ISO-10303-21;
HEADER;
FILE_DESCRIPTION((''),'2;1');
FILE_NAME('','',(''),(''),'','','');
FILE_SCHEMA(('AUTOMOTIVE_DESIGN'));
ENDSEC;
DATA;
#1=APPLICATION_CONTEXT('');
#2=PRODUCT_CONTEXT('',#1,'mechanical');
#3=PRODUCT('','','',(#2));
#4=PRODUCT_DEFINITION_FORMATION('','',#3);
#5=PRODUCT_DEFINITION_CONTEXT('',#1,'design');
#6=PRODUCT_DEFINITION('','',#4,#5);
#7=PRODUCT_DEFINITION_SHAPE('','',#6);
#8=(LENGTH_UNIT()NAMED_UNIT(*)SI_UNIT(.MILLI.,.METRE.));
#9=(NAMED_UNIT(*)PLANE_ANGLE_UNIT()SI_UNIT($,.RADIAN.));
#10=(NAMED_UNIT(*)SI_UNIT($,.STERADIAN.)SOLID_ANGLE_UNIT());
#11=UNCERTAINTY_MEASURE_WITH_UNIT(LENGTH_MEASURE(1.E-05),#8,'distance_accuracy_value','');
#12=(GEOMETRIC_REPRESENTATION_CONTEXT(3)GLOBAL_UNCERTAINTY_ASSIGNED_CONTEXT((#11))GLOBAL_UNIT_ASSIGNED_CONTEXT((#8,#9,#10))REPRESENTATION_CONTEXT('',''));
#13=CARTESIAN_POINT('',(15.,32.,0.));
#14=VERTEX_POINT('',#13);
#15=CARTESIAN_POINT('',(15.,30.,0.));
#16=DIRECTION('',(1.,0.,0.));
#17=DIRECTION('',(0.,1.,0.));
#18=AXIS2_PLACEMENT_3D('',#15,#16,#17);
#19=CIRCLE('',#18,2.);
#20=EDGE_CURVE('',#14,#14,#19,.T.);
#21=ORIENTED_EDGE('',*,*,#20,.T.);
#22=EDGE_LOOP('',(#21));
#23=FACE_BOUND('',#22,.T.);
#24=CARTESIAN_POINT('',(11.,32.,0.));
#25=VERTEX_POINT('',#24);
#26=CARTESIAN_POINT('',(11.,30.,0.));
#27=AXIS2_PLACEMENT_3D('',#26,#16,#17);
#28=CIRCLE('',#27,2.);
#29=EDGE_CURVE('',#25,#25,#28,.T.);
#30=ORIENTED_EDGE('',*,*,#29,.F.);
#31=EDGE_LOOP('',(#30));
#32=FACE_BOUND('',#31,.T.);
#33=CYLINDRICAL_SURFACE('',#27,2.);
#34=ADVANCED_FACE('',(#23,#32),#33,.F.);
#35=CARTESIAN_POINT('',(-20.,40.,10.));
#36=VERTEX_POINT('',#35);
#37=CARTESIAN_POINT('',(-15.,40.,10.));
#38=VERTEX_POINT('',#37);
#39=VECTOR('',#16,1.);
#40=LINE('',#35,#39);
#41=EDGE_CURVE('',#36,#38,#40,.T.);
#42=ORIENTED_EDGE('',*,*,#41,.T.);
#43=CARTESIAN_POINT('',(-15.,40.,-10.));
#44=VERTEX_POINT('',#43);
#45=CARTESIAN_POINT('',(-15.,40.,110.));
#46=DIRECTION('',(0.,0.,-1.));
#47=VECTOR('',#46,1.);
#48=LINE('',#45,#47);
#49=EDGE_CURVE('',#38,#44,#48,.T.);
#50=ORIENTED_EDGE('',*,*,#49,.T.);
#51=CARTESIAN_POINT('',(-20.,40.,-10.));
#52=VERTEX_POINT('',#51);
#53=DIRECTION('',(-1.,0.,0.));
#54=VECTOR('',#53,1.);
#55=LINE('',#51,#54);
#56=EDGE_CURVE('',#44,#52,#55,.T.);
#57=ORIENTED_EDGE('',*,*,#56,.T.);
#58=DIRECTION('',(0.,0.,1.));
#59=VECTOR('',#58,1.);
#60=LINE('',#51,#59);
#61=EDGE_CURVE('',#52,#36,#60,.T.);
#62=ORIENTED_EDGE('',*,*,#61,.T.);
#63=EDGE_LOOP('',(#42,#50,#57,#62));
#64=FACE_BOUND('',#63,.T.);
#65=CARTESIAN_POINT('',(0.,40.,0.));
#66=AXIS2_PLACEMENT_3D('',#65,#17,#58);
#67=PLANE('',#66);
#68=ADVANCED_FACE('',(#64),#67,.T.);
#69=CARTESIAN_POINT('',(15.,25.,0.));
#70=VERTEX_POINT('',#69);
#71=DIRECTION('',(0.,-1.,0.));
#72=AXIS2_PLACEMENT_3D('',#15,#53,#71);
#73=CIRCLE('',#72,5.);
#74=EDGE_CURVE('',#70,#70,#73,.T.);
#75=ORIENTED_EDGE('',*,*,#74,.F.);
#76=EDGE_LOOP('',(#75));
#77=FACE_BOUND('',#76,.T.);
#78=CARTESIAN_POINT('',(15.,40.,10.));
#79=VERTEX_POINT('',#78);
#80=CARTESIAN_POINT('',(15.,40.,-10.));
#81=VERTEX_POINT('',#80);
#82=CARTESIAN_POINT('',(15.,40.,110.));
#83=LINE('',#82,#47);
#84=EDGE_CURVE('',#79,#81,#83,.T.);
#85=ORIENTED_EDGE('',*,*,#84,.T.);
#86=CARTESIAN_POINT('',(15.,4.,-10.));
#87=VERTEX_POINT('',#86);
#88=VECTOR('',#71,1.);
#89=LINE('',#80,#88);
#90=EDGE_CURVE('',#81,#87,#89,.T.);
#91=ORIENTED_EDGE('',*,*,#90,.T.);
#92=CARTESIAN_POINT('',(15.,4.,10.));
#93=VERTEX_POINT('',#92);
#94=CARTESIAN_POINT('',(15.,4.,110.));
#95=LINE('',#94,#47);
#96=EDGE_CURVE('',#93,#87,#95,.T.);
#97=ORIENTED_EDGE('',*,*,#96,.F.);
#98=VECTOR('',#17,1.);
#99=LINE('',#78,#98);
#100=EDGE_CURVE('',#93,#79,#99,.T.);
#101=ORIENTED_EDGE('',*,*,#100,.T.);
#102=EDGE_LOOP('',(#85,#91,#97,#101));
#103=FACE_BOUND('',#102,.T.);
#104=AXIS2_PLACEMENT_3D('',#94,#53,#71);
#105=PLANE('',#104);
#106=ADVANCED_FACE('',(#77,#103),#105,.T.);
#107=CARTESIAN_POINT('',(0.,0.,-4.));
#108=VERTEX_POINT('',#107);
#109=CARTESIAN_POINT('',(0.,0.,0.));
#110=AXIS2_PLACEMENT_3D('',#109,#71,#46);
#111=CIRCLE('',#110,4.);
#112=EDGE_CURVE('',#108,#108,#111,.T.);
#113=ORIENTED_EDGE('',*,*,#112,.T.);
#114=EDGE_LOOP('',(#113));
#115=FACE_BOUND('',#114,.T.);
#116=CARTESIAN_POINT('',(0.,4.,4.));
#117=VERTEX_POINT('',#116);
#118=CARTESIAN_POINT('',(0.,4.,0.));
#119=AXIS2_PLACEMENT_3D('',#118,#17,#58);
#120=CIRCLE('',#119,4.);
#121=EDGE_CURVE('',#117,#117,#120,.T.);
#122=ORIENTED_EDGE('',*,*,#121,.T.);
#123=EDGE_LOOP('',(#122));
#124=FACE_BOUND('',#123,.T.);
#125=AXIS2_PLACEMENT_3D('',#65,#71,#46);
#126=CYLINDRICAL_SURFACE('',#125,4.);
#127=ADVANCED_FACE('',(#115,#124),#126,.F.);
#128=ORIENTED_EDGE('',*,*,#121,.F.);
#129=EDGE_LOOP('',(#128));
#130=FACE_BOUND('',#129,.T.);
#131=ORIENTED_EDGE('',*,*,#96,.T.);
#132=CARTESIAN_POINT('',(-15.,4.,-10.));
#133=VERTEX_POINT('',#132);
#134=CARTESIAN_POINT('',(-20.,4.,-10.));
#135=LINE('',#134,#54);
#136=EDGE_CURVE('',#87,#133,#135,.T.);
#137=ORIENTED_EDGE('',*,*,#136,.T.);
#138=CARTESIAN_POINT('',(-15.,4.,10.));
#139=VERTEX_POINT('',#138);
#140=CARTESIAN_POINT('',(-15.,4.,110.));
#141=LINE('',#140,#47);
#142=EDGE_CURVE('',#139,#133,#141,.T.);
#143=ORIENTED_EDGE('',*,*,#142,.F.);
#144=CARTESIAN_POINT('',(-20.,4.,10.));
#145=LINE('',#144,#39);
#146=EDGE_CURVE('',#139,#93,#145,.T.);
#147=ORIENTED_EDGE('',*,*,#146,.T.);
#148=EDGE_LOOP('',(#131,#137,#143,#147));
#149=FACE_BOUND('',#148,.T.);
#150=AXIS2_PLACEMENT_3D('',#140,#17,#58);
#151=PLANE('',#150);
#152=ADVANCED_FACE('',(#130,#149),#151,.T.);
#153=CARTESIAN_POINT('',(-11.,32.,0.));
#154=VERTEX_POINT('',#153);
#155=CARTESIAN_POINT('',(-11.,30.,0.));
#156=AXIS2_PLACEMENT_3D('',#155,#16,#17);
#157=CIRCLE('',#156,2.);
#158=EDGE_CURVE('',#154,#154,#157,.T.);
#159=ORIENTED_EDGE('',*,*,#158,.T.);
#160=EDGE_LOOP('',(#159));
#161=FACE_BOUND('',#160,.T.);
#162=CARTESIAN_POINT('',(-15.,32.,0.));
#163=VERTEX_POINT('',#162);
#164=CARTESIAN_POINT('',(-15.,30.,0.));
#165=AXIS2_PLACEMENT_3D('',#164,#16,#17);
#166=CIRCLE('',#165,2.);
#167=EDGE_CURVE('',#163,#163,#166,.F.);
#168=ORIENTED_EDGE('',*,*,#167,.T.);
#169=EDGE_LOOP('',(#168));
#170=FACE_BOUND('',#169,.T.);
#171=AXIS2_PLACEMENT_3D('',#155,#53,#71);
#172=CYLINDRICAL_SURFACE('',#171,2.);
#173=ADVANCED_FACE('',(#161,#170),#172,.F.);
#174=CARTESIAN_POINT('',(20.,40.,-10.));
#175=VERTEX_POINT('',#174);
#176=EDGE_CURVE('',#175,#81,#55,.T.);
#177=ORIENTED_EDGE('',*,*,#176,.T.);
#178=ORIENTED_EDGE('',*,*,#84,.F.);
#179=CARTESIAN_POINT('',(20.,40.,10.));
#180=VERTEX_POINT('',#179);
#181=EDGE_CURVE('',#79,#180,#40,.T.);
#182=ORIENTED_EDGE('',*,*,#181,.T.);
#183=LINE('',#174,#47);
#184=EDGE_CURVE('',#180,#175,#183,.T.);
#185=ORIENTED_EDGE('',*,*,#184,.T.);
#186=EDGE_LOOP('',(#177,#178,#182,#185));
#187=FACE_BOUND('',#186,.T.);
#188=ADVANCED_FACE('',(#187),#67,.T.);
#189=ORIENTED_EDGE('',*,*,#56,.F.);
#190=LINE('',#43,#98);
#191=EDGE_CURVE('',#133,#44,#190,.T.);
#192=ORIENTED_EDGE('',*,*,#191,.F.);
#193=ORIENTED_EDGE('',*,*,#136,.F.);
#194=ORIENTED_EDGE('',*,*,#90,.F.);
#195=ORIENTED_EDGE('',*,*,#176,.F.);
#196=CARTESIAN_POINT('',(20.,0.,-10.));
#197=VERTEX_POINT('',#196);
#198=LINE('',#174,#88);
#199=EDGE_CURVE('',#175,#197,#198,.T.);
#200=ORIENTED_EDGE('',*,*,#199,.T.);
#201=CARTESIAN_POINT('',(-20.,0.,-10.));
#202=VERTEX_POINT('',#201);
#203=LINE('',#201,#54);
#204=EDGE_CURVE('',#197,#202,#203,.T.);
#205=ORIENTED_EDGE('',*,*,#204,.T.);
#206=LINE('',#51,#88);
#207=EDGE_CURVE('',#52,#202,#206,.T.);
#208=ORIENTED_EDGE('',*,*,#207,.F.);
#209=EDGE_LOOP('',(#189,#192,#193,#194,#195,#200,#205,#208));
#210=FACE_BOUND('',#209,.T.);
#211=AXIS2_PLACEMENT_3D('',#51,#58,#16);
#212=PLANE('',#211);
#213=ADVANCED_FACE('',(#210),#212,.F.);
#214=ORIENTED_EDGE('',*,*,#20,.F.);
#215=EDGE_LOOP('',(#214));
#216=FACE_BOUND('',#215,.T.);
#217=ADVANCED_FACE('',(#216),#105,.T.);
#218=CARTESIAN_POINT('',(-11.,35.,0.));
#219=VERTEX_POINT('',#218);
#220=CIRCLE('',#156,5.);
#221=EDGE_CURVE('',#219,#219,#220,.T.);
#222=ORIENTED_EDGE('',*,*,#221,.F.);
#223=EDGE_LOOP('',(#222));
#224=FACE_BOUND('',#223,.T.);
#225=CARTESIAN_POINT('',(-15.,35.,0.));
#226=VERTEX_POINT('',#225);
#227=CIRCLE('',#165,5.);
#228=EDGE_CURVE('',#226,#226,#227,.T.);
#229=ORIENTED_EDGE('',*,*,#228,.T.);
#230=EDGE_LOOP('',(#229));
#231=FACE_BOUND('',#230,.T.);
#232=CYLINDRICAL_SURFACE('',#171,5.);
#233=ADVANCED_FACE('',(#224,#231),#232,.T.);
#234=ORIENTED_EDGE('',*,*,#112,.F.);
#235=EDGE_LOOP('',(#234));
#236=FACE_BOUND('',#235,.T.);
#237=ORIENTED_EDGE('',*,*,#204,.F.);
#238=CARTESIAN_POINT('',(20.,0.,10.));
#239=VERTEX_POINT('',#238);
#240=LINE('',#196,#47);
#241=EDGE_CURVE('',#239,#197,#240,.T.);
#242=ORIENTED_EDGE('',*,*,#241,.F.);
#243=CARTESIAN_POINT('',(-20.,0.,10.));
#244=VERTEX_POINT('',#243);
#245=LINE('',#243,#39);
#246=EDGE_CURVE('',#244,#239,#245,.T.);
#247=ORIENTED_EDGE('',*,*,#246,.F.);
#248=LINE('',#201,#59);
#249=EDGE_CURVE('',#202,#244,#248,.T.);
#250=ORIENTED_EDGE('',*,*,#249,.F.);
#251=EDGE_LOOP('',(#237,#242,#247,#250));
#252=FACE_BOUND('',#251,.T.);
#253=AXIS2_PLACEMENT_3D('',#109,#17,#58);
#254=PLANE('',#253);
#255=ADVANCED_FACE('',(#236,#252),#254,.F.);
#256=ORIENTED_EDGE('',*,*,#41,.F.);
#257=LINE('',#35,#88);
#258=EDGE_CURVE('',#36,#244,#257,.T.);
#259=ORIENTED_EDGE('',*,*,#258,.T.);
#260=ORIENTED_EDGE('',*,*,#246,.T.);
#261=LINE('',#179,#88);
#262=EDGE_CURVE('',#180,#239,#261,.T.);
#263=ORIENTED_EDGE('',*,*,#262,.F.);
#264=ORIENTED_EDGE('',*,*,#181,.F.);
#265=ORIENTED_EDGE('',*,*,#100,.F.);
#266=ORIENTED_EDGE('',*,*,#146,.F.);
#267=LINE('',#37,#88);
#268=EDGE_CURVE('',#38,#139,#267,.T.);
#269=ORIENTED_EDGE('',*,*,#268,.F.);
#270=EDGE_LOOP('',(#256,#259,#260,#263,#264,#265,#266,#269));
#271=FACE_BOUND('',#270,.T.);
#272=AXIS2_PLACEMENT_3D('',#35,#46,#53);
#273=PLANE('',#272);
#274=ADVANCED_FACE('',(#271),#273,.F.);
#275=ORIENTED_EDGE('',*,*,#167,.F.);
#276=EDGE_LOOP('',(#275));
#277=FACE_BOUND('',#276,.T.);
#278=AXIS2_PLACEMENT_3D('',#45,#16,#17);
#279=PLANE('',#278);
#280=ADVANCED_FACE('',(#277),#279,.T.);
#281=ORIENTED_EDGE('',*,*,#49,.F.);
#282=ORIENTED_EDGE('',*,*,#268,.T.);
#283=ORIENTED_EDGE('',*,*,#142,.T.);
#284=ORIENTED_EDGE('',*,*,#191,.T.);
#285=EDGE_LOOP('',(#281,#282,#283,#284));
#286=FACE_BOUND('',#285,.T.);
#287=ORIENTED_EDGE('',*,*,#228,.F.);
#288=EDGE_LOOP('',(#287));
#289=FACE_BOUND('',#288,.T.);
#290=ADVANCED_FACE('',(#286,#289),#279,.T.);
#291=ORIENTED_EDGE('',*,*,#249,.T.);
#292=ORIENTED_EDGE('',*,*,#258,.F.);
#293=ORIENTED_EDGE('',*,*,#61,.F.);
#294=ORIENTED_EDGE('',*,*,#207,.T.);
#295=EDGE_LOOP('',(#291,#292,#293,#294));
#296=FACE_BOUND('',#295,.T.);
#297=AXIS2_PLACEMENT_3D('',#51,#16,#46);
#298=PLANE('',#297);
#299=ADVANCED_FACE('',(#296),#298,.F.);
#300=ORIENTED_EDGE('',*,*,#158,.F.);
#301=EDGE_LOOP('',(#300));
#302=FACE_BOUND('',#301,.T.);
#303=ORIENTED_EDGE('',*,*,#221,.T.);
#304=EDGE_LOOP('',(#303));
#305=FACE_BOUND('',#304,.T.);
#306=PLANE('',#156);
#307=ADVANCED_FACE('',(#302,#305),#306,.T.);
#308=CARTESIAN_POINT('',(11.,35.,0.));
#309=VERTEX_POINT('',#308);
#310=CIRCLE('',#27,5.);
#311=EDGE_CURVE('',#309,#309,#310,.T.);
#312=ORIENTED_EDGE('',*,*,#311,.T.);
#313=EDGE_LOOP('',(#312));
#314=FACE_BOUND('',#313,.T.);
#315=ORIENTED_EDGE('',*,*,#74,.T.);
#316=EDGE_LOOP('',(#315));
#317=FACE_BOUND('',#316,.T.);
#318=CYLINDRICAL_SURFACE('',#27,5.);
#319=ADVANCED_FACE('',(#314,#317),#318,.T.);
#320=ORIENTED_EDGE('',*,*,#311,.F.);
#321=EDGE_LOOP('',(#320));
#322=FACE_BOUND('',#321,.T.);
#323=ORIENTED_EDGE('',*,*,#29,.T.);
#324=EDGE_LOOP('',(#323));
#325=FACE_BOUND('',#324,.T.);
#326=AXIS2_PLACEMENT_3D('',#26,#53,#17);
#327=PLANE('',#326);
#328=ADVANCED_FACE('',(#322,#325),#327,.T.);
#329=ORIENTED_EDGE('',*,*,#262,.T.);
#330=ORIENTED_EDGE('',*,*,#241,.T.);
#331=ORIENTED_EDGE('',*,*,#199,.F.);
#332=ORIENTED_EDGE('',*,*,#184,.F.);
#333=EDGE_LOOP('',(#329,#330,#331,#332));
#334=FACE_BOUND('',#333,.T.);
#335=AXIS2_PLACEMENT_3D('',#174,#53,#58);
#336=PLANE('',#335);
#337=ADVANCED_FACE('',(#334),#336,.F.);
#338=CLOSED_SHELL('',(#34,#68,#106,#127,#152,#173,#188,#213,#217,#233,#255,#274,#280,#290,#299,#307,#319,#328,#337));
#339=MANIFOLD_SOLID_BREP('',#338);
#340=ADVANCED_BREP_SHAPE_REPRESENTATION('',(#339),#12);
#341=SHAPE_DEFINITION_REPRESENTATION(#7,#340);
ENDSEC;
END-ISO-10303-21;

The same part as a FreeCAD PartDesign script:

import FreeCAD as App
import Part
import Sketcher
from FreeCAD import Vector

doc = App.newDocument("Part")
body = doc.addObject("PartDesign::Body", "Body")

# Sketch on XZ plane
sketch1 = body.newObject("Sketcher::SketchObject", "Sketch")
sketch1.AttachmentSupport = (doc.getObject("XZ_Plane"), [""])
sketch1.MapMode = "FlatFace"
sketch1.addGeometry(Part.LineSegment(Vector(-20, -10, 0), Vector(-20, 10, 0)), False)
sketch1.addGeometry(Part.LineSegment(Vector(-20, 10, 0), Vector(20, 10, 0)), False)
sketch1.addGeometry(Part.LineSegment(Vector(20, 10, 0), Vector(20, -10, 0)), False)
sketch1.addGeometry(Part.LineSegment(Vector(20, -10, 0), Vector(-20, -10, 0)), False)
sketch1.addConstraint(Sketcher.Constraint("Coincident", 0, 2, 1, 1))
sketch1.addConstraint(Sketcher.Constraint("Coincident", 1, 2, 2, 1))
sketch1.addConstraint(Sketcher.Constraint("Coincident", 2, 2, 3, 1))
sketch1.addConstraint(Sketcher.Constraint("Coincident", 3, 2, 0, 1))
sketch1.addConstraint(Sketcher.Constraint("Vertical", 0))
sketch1.addConstraint(Sketcher.Constraint("Horizontal", 1))
sketch1.addConstraint(Sketcher.Constraint("Vertical", 2))
sketch1.addConstraint(Sketcher.Constraint("Horizontal", 3))
sketch1.addConstraint(Sketcher.Constraint("Symmetric", 0, 2, 2, 2, -1, 1))
sketch1.addConstraint(Sketcher.Constraint("DistanceX", 1, 1, 1, 2, 40.0))
sketch1.addConstraint(Sketcher.Constraint("DistanceY", 0, 1, 0, 2, 20.0))
pad1 = body.newObject("PartDesign::Pad", "Pad")
pad1.Profile = sketch1
pad1.Length = 40
pad1.Reversed = True

# Sketch on XY plane
sketch2 = body.newObject("Sketcher::SketchObject", "Sketch001")
sketch2.AttachmentSupport = (doc.getObject("XY_Plane"), [""])
sketch2.MapMode = "FlatFace"
sketch2.AttachmentOffset = App.Placement(Vector(0, 0, 10), App.Rotation())
sketch2.addGeometry(Part.LineSegment(Vector(-15, 4, 0), Vector(15, 4, 0)), False)
sketch2.addGeometry(Part.LineSegment(Vector(15, 4, 0), Vector(15, 389, 0)), False)
sketch2.addGeometry(Part.LineSegment(Vector(15, 389, 0), Vector(-15, 389, 0)), False)
sketch2.addGeometry(Part.LineSegment(Vector(-15, 389, 0), Vector(-15, 4, 0)), False)
sketch2.addConstraint(Sketcher.Constraint("Coincident", 0, 2, 1, 1))
sketch2.addConstraint(Sketcher.Constraint("Coincident", 1, 2, 2, 1))
sketch2.addConstraint(Sketcher.Constraint("Coincident", 2, 2, 3, 1))
sketch2.addConstraint(Sketcher.Constraint("Coincident", 3, 2, 0, 1))
sketch2.addConstraint(Sketcher.Constraint("Horizontal", 0))
sketch2.addConstraint(Sketcher.Constraint("Vertical", 1))
sketch2.addConstraint(Sketcher.Constraint("Horizontal", 2))
sketch2.addConstraint(Sketcher.Constraint("Vertical", 3))
sketch2.addConstraint(Sketcher.Constraint("DistanceX", 0, 1, 0, 2, 30.0))
sketch2.addConstraint(Sketcher.Constraint("DistanceX", -1, 1, 0, 2, 15.0))
sketch2.addConstraint(Sketcher.Constraint("DistanceY", -1, 1, 0, 2, 4.0))
sketch2.addConstraint(Sketcher.Constraint("DistanceY", 1, 1, 1, 2, 384.904374))
pocket1 = body.newObject("PartDesign::Pocket", "Pocket")
pocket1.Profile = sketch2
pocket1.Type = "ThroughAll"
pocket1.Midplane = True

# Sketch on XZ plane
sketch3 = body.newObject("Sketcher::SketchObject", "Sketch002")
sketch3.AttachmentSupport = (doc.getObject("XZ_Plane"), [""])
sketch3.MapMode = "FlatFace"
sketch3.addGeometry(Part.Circle(Vector(0, 0, 0), Vector(0, 0, 1), 4), False)
sketch3.addConstraint(Sketcher.Constraint("Coincident", 0, 3, -1, 1))
sketch3.addConstraint(Sketcher.Constraint("Diameter", 0, 8.0))
pocket2 = body.newObject("PartDesign::Pocket", "Pocket001")
pocket2.Profile = sketch3
pocket2.Type = "ThroughAll"

# Sketch on YZ plane
sketch4 = body.newObject("Sketcher::SketchObject", "Sketch003")
sketch4.AttachmentSupport = (doc.getObject("YZ_Plane"), [""])
sketch4.MapMode = "FlatFace"
sketch4.AttachmentOffset = App.Placement(Vector(0, 0, -15), App.Rotation())
sketch4.addGeometry(Part.Circle(Vector(30, 0, 0), Vector(0, 0, 1), 5), False)
sketch4.addGeometry(Part.Circle(Vector(30, 0, 0), Vector(0, 0, 1), 2), False)
sketch4.addConstraint(Sketcher.Constraint("Coincident", 1, 3, 0, 3))
sketch4.addConstraint(Sketcher.Constraint("PointOnObject", 0, 3, -1))
sketch4.addConstraint(Sketcher.Constraint("Diameter", 0, 10.0))
sketch4.addConstraint(Sketcher.Constraint("Diameter", 1, 4.0))
sketch4.addConstraint(Sketcher.Constraint("DistanceX", -1, 1, 0, 3, 30.0))
pad2 = body.newObject("PartDesign::Pad", "Pad001")
pad2.Profile = sketch4
pad2.Length = 4
doc.recompute()

mirrored = body.newObject("PartDesign::Mirrored", "Mirrored")
mirrored.Originals = [pad2]
mirrored.MirrorPlane = (doc.getObject("YZ_Plane"), [""])
body.Tip = mirrored

doc.recompute()
